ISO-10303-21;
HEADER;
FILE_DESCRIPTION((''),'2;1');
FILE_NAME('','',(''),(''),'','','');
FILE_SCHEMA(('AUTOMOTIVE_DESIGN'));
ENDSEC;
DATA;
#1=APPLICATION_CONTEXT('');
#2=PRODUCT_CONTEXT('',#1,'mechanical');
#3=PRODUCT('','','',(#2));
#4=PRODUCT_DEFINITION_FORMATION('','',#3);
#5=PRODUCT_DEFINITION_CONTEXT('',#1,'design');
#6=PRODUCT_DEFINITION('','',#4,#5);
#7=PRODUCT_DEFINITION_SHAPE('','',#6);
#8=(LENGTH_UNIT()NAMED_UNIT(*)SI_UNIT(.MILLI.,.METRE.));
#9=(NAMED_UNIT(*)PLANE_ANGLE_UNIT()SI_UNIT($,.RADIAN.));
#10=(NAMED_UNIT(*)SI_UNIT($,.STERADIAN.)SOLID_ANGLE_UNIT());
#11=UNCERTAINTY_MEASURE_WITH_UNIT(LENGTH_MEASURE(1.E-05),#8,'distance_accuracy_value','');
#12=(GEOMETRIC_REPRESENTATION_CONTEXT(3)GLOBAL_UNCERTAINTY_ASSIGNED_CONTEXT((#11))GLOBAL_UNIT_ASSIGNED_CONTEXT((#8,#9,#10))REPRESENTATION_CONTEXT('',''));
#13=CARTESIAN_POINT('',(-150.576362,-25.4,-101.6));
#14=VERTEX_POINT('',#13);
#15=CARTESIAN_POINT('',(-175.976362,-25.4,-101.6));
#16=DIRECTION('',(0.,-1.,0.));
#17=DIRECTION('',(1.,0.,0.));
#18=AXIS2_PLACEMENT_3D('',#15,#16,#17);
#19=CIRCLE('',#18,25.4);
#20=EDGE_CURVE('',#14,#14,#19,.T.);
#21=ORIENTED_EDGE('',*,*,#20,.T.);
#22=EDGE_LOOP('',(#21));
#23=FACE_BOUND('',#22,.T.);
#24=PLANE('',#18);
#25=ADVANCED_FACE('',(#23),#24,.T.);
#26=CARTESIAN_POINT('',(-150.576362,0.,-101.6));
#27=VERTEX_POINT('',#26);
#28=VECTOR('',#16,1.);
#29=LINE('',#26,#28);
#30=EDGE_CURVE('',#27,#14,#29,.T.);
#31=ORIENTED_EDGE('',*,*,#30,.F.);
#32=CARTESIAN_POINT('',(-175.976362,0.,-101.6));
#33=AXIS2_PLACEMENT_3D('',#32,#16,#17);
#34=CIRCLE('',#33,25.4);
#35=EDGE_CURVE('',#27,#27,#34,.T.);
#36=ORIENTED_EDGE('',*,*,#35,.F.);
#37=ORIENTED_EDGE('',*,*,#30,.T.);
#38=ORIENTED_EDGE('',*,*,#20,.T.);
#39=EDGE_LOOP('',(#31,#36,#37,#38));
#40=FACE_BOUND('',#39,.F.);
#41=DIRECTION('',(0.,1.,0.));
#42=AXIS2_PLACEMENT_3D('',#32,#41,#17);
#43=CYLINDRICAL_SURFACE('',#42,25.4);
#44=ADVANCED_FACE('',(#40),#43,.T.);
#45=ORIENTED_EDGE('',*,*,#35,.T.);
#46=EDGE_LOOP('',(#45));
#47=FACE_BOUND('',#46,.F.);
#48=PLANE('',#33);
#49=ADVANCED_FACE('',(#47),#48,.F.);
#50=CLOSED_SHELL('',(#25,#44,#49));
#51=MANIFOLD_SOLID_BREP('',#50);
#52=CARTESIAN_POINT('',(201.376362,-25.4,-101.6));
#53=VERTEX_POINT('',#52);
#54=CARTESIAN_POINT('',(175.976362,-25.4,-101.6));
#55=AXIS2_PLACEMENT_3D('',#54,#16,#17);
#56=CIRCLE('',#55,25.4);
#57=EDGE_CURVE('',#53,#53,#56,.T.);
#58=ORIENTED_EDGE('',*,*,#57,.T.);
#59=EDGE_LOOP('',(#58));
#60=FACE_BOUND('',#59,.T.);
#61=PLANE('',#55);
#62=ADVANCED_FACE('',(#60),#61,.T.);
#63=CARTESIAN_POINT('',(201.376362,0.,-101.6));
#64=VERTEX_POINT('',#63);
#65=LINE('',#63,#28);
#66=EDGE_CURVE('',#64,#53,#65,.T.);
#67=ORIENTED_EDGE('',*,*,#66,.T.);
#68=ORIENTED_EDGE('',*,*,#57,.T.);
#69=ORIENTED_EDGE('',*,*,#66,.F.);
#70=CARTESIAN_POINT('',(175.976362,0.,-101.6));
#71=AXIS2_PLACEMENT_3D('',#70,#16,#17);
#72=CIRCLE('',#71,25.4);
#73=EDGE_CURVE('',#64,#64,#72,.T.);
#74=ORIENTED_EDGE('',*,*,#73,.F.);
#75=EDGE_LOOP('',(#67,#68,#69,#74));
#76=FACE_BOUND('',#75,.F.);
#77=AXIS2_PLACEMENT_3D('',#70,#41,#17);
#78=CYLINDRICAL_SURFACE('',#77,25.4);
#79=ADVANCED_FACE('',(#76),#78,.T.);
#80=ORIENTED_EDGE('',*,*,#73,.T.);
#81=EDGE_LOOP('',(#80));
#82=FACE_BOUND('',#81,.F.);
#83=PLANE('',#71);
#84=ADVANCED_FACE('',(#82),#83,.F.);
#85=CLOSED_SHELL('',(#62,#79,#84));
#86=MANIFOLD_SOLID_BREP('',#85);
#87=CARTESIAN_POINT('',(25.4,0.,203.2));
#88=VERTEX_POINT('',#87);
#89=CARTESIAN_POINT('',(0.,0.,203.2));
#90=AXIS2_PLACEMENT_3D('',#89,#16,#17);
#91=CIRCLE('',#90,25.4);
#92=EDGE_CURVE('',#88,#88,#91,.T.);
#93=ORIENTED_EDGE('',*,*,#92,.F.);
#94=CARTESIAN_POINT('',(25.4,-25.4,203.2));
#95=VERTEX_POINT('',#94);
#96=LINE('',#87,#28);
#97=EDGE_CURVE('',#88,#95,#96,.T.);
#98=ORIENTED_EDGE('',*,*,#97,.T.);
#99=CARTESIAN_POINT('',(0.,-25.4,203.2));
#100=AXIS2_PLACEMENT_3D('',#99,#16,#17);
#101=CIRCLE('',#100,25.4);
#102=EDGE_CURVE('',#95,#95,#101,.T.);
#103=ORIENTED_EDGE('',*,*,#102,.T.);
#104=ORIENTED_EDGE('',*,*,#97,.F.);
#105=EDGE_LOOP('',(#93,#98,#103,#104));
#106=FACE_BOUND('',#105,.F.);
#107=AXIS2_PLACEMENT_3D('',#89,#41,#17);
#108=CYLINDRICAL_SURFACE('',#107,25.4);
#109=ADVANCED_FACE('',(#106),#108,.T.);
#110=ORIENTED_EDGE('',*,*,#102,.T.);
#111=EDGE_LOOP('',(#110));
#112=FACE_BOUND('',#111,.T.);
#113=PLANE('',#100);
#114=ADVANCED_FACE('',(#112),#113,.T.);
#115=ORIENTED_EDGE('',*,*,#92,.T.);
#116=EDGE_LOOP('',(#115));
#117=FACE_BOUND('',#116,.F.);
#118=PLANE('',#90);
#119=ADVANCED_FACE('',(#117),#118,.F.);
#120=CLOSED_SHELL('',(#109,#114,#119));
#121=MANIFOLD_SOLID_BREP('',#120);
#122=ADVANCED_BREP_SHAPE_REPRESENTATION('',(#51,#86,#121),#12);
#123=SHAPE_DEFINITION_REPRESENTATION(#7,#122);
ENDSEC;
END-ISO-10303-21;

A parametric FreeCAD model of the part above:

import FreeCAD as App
import Part
import Sketcher
Q = App.Units.Quantity

doc = App.newDocument("Part")
body = doc.addObject("PartDesign::Body", "Body")
body.AllowCompound = True

# Sketch on XZ plane
sketch1 = body.newObject("Sketcher::SketchObject", "Sketch")
sketch1.AttachmentSupport = (doc.getObject("XZ_Plane"), [""])
sketch1.MapMode = "FlatFace"
sketch1.addGeometry([
    Part.Circle(App.Vector(0, 203, 0), App.Vector(0, 0, 1), 25),
    Part.Circle(App.Vector(176, -102, 0), App.Vector(0, 0, 1), 25),
    Part.Circle(App.Vector(-176, -102, 0), App.Vector(0, 0, 1), 25),
], False)
sketch1.addConstraint([
    Sketcher.Constraint("Equal", 0, 1),
    Sketcher.Constraint("Equal", 1, 2),
    Sketcher.Constraint("Symmetric", 1, 3, 2, 3, -2),
    Sketcher.Constraint("PointOnObject", 0, 3, -2),
    Sketcher.Constraint("Diameter", 0, Q("2 in")),
    Sketcher.Constraint("DistanceY", -1, 1, 0, 3, Q("8 in")),
    Sketcher.Constraint("DistanceY", 1, 3, -1, 1, Q("4 in")),
    Sketcher.Constraint("DistanceX", -1, 1, 1, 3, 175.976362),
])
pad1 = body.newObject("PartDesign::Pad", "Pad")
pad1.Profile = sketch1
pad1.Length = Q("1 in")

doc.recompute()
